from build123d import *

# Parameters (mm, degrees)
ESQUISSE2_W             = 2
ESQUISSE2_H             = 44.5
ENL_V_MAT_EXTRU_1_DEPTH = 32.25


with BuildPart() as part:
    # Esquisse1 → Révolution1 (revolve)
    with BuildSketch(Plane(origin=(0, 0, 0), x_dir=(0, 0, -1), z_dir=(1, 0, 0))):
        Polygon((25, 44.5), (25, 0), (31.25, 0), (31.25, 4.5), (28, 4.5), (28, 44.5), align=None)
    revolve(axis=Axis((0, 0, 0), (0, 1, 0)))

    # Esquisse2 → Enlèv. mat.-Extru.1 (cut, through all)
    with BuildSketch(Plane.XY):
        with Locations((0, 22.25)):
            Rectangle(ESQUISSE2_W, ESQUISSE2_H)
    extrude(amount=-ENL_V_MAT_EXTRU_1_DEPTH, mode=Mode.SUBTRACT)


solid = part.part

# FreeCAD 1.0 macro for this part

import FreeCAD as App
import Part
import Sketcher

V = App.Vector
Q = App.Units.Quantity

doc = App.newDocument("Part")
body = doc.addObject("PartDesign::Body", "Body")

# Sketch on YZ plane
sketch1 = body.newObject("Sketcher::SketchObject", "Sketch")
sketch1.AttachmentSupport = (doc.getObject("YZ_Plane"), [""])
sketch1.MapMode = "FlatFace"
sketch1.addGeometry(Part.LineSegment(V(44.5, -25, 0), V(0, -25, 0)), False)
sketch1.addGeometry(Part.LineSegment(V(0, -25, 0), V(0, -31.25, 0)), False)
sketch1.addGeometry(Part.LineSegment(V(0, -31.25, 0), V(4.5, -31.25, 0)), False)
sketch1.addGeometry(Part.LineSegment(V(4.5, -31.25, 0), V(4.5, -28, 0)), False)
sketch1.addGeometry(Part.LineSegment(V(4.5, -28, 0), V(44.5, -28, 0)), False)
sketch1.addGeometry(Part.LineSegment(V(44.5, -28, 0), V(44.5, -25, 0)), False)
sketch1.addConstraint(Sketcher.Constraint("Coincident", 0, 2, 1, 1))
sketch1.addConstraint(Sketcher.Constraint("Coincident", 1, 2, 2, 1))
sketch1.addConstraint(Sketcher.Constraint("Coincident", 2, 2, 3, 1))
sketch1.addConstraint(Sketcher.Constraint("Coincident", 3, 2, 4, 1))
sketch1.addConstraint(Sketcher.Constraint("Coincident", 4, 2, 5, 1))
sketch1.addConstraint(Sketcher.Constraint("Coincident", 5, 2, 0, 1))
sketch1.addConstraint(Sketcher.Constraint("Horizontal", 0))
sketch1.addConstraint(Sketcher.Constraint("Vertical", 1))
sketch1.addConstraint(Sketcher.Constraint("Horizontal", 2))
sketch1.addConstraint(Sketcher.Constraint("Vertical", 3))
sketch1.addConstraint(Sketcher.Constraint("Horizontal", 4))
sketch1.addConstraint(Sketcher.Constraint("Vertical", 5))
sketch1.addConstraint(Sketcher.Constraint("PointOnObject", 0, 2, -2))
sketch1.addConstraint(Sketcher.Constraint("DistanceX", 4, 1, 4, 2, Q("40 mm")))
sketch1.addConstraint(Sketcher.Constraint("DistanceY", 5, 1, 5, 2, Q("3 mm")))
sketch1.addConstraint(Sketcher.Constraint("DistanceX", 0, 2, 0, 1, Q("44.5 mm")))
sketch1.addConstraint(Sketcher.Constraint("DistanceY", 0, 2, -1, 1, Q("25 mm")))
sketch1.addConstraint(Sketcher.Constraint("DistanceY", 1, 2, 1, 1, Q("6.25 mm")))
revolution = body.newObject("PartDesign::Revolution", "Revolution")
revolution.Profile = sketch1
revolution.ReferenceAxis = (sketch1, ["H_Axis"])
revolution.Angle = 360

# Sketch on XY plane
sketch2 = body.newObject("Sketcher::SketchObject", "Sketch001")
sketch2.AttachmentSupport = (doc.getObject("XY_Plane"), [""])
sketch2.MapMode = "FlatFace"
sketch2.addGeometry(Part.LineSegment(V(-1, 44.5, 0), V(-1, 0, 0)), False)
sketch2.addGeometry(Part.LineSegment(V(-1, 0, 0), V(1, 0, 0)), False)
sketch2.addGeometry(Part.LineSegment(V(1, 0, 0), V(1, 44.5, 0)), False)
sketch2.addGeometry(Part.LineSegment(V(1, 44.5, 0), V(-1, 44.5, 0)), False)
sketch2.addConstraint(Sketcher.Constraint("Coincident", 0, 2, 1, 1))
sketch2.addConstraint(Sketcher.Constraint("Coincident", 1, 2, 2, 1))
sketch2.addConstraint(Sketcher.Constraint("Coincident", 2, 2, 3, 1))
sketch2.addConstraint(Sketcher.Constraint("Coincident", 3, 2, 0, 1))
sketch2.addConstraint(Sketcher.Constraint("Vertical", 0))
sketch2.addConstraint(Sketcher.Constraint("Horizontal", 1))
sketch2.addConstraint(Sketcher.Constraint("Vertical", 2))
sketch2.addConstraint(Sketcher.Constraint("Horizontal", 3))
sketch2.addConstraint(Sketcher.Constraint("Symmetric", 0, 2, 1, 2, -1, 1))
sketch2.addConstraint(Sketcher.Constraint("DistanceX", 1, 1, 1, 2, Q("2 mm")))
sketch2.addConstraint(Sketcher.Constraint("DistanceY", 0, 2, 0, 1, Q("44.5 mm")))
pocket1 = body.newObject("PartDesign::Pocket", "Pocket")
pocket1.Profile = sketch2
pocket1.Type = "ThroughAll"

doc.recompute()
